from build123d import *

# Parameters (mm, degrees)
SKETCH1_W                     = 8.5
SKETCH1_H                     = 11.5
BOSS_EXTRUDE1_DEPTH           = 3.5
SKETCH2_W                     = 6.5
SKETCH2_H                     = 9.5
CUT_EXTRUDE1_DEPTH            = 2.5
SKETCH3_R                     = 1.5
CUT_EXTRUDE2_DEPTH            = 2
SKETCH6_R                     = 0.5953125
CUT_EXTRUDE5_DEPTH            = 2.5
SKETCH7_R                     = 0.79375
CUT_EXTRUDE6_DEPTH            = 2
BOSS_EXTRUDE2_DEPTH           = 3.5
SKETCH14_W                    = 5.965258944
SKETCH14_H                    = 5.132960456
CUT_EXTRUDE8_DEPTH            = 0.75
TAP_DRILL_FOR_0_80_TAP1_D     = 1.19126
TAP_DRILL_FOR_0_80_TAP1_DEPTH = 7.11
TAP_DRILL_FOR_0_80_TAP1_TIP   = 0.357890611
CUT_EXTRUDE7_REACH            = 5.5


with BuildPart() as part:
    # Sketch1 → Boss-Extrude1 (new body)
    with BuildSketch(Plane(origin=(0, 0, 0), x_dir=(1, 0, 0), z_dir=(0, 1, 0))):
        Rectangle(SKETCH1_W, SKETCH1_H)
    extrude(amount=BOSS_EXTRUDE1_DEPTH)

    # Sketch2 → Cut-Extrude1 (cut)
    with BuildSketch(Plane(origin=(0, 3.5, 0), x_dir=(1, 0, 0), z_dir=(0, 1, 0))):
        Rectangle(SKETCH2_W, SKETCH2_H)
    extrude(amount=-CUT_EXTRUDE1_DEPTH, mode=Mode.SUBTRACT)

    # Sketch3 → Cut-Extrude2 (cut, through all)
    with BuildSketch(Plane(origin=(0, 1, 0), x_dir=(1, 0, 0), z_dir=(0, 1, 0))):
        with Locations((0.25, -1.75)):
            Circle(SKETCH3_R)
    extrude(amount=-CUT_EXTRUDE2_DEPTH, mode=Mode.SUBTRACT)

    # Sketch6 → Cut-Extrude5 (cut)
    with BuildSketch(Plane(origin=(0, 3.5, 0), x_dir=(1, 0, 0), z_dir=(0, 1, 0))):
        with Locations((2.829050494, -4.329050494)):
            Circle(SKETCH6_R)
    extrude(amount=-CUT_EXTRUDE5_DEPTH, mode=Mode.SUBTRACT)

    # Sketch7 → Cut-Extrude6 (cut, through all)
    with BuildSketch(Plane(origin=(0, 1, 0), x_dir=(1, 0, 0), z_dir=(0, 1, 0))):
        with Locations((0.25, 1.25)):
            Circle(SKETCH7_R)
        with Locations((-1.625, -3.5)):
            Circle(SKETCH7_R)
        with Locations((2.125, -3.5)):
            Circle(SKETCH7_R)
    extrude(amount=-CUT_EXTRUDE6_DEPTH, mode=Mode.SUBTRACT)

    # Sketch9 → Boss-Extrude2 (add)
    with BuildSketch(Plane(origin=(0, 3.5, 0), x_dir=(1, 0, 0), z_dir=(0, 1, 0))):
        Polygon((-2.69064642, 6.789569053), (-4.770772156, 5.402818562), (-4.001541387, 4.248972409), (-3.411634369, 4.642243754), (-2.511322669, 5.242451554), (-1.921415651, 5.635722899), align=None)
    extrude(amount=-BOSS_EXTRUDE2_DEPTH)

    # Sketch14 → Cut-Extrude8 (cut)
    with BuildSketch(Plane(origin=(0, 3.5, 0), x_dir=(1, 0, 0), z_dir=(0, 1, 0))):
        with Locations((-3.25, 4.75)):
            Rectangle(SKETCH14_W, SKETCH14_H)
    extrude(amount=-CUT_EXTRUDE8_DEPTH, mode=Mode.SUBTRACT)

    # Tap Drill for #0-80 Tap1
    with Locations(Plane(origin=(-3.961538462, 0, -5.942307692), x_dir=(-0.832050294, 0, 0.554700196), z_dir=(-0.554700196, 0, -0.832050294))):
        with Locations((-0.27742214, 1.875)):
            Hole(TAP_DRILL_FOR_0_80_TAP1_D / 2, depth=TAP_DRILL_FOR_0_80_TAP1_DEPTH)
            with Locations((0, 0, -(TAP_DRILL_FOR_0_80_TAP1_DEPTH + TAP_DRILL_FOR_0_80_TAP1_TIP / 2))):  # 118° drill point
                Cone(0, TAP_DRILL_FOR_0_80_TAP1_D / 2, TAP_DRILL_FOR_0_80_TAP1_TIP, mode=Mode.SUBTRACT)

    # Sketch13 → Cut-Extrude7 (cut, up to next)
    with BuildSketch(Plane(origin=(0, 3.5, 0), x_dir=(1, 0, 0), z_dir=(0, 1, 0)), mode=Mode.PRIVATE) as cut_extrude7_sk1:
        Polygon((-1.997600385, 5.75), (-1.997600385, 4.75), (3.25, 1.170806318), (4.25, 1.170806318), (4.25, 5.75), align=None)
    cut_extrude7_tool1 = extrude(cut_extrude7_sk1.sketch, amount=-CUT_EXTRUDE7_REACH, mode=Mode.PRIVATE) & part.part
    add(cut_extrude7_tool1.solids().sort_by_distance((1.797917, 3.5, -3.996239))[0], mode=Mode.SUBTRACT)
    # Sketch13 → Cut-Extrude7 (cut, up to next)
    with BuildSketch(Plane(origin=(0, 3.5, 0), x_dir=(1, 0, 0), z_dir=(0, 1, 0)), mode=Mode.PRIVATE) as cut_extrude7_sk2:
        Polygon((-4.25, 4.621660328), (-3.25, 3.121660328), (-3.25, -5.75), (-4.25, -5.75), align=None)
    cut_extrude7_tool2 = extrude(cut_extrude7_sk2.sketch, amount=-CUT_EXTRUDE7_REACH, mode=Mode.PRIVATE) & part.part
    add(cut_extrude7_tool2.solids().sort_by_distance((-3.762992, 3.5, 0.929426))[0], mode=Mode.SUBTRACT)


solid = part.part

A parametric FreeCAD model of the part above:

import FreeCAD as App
import Part
import Sketcher

V = App.Vector
Q = App.Units.Quantity

doc = App.newDocument("Part")
body = doc.addObject("PartDesign::Body", "Body")

sketch1 = doc.addObject("Sketcher::SketchObject", "Sketch")
body.addObject(sketch1)
sketch1.AttachmentSupport = (doc.XZ_Plane, [""])
sketch1.MapMode = "FlatFace"
sketch1.addGeometry(Part.LineSegment(V(-4.25, -5.75, 0), V(-4.25, 5.75, 0)), False)
sketch1.addGeometry(Part.LineSegment(V(-4.25, 5.75, 0), V(4.25, 5.75, 0)), False)
sketch1.addGeometry(Part.LineSegment(V(4.25, 5.75, 0), V(4.25, -5.75, 0)), False)
sketch1.addGeometry(Part.LineSegment(V(4.25, -5.75, 0), V(-4.25, -5.75, 0)), False)
sketch1.addConstraint(Sketcher.Constraint("Coincident", 0, 2, 1, 1))
sketch1.addConstraint(Sketcher.Constraint("Coincident", 1, 2, 2, 1))
sketch1.addConstraint(Sketcher.Constraint("Coincident", 2, 2, 3, 1))
sketch1.addConstraint(Sketcher.Constraint("Coincident", 3, 2, 0, 1))
sketch1.addConstraint(Sketcher.Constraint("Vertical", 0))
sketch1.addConstraint(Sketcher.Constraint("Horizontal", 1))
sketch1.addConstraint(Sketcher.Constraint("Vertical", 2))
sketch1.addConstraint(Sketcher.Constraint("Horizontal", 3))
sketch1.addConstraint(Sketcher.Constraint("Symmetric", 0, 2, 2, 2, -1, 1))
sketch1.addConstraint(Sketcher.Constraint("DistanceX", 1, 1, 1, 2, Q("8.5 mm")))
sketch1.addConstraint(Sketcher.Constraint("DistanceY", 0, 1, 0, 2, Q("11.5 mm")))
pad1 = doc.addObject("PartDesign::Pad", "Pad")
body.addObject(pad1)
pad1.Profile = sketch1
pad1.Length = 3.5
pad1.Reversed = True

sketch2 = doc.addObject("Sketcher::SketchObject", "Sketch001")
body.addObject(sketch2)
sketch2.AttachmentSupport = (doc.XZ_Plane, [""])
sketch2.MapMode = "FlatFace"
sketch2.AttachmentOffset = App.Placement(V(0, 0, -3.5), App.Rotation())
sketch2.addGeometry(Part.LineSegment(V(-3.25, -4.75, 0), V(-3.25, 4.75, 0)), False)
sketch2.addGeometry(Part.LineSegment(V(-3.25, 4.75, 0), V(3.25, 4.75, 0)), False)
sketch2.addGeometry(Part.LineSegment(V(3.25, 4.75, 0), V(3.25, -4.75, 0)), False)
sketch2.addGeometry(Part.LineSegment(V(3.25, -4.75, 0), V(-3.25, -4.75, 0)), False)
sketch2.addConstraint(Sketcher.Constraint("Coincident", 0, 2, 1, 1))
sketch2.addConstraint(Sketcher.Constraint("Coincident", 1, 2, 2, 1))
sketch2.addConstraint(Sketcher.Constraint("Coincident", 2, 2, 3, 1))
sketch2.addConstraint(Sketcher.Constraint("Coincident", 3, 2, 0, 1))
sketch2.addConstraint(Sketcher.Constraint("Vertical", 0))
sketch2.addConstraint(Sketcher.Constraint("Horizontal", 1))
sketch2.addConstraint(Sketcher.Constraint("Vertical", 2))
sketch2.addConstraint(Sketcher.Constraint("Horizontal", 3))
sketch2.addConstraint(Sketcher.Constraint("Symmetric", 0, 2, 2, 2, -1, 1))
sketch2.addConstraint(Sketcher.Constraint("DistanceX", 1, 1, 1, 2, Q("6.5 mm")))
sketch2.addConstraint(Sketcher.Constraint("DistanceY", 0, 1, 0, 2, Q("9.5 mm")))
pocket1 = doc.addObject("PartDesign::Pocket", "Pocket")
body.addObject(pocket1)
pocket1.Profile = sketch2
pocket1.Length = 2.5
pocket1.Reversed = True

sketch3 = doc.addObject("Sketcher::SketchObject", "Sketch002")
body.addObject(sketch3)
sketch3.AttachmentSupport = (doc.XZ_Plane, [""])
sketch3.MapMode = "FlatFace"
sketch3.AttachmentOffset = App.Placement(V(0, 0, -1), App.Rotation())
sketch3.addGeometry(Part.Circle(V(0.25, 1.75, 0), V(0, 0, 1), 1.5), False)
sketch3.addConstraint(Sketcher.Constraint("Diameter", 0, Q("3 mm")))
sketch3.addConstraint(Sketcher.Constraint("DistanceX", -1, 1, 0, 3, Q("0.25 mm")))
sketch3.addConstraint(Sketcher.Constraint("DistanceY", -1, 1, 0, 3, Q("1.75 mm")))
pocket2 = doc.addObject("PartDesign::Pocket", "Pocket001")
body.addObject(pocket2)
pocket2.Profile = sketch3
pocket2.Type = "ThroughAll"
pocket2.Reversed = True

sketch4 = doc.addObject("Sketcher::SketchObject", "Sketch003")
body.addObject(sketch4)
sketch4.AttachmentSupport = (doc.XZ_Plane, [""])
sketch4.MapMode = "FlatFace"
sketch4.AttachmentOffset = App.Placement(V(0, 0, -3.5), App.Rotation())
sketch4.addGeometry(Part.Circle(V(2.82905, 4.32905, 0), V(0, 0, 1), 0.595313), False)
sketch4.addConstraint(Sketcher.Constraint("Diameter", 0, Q("1.190625 mm")))
sketch4.addConstraint(Sketcher.Constraint("DistanceX", -1, 1, 0, 3, Q("2.82905 mm")))
sketch4.addConstraint(Sketcher.Constraint("DistanceY", -1, 1, 0, 3, Q("4.32905 mm")))
pocket3 = doc.addObject("PartDesign::Pocket", "Pocket002")
body.addObject(pocket3)
pocket3.Profile = sketch4
pocket3.Length = 2.5
pocket3.Reversed = True

sketch5 = doc.addObject("Sketcher::SketchObject", "Sketch004")
body.addObject(sketch5)
sketch5.AttachmentSupport = (doc.XZ_Plane, [""])
sketch5.MapMode = "FlatFace"
sketch5.AttachmentOffset = App.Placement(V(0, 0, -1), App.Rotation())
sketch5.addGeometry(Part.Circle(V(0.25, -1.25, 0), V(0, 0, 1), 0.79375), False)
sketch5.addGeometry(Part.Circle(V(-1.625, 3.5, 0), V(0, 0, 1), 0.79375), False)
sketch5.addGeometry(Part.Circle(V(2.125, 3.5, 0), V(0, 0, 1), 0.79375), False)
sketch5.addConstraint(Sketcher.Constraint("Equal", 0, 1))
sketch5.addConstraint(Sketcher.Constraint("Equal", 1, 2))
sketch5.addConstraint(Sketcher.Constraint("Horizontal", 1, 3, 2, 3))
sketch5.addConstraint(Sketcher.Constraint("Diameter", 0, Q("1.5875 mm")))
sketch5.addConstraint(Sketcher.Constraint("DistanceY", -1, 1, 1, 3, Q("3.5 mm")))
sketch5.addConstraint(Sketcher.Constraint("DistanceX", -1, 1, 0, 3, Q("0.25 mm")))
sketch5.addConstraint(Sketcher.Constraint("DistanceY", 0, 3, -1, 1, Q("1.25 mm")))
sketch5.addConstraint(Sketcher.Constraint("DistanceX", 1, 3, 2, 3, Q("3.75 mm")))
sketch5.addConstraint(Sketcher.Constraint("DistanceX", 1, 3, -1, 1, Q("1.625 mm")))
pocket4 = doc.addObject("PartDesign::Pocket", "Pocket003")
body.addObject(pocket4)
pocket4.Profile = sketch5
pocket4.Type = "ThroughAll"
pocket4.Reversed = True

sketch6 = doc.addObject("Sketcher::SketchObject", "Sketch005")
body.addObject(sketch6)
sketch6.AttachmentSupport = (doc.XZ_Plane, [""])
sketch6.MapMode = "FlatFace"
sketch6.AttachmentOffset = App.Placement(V(0, 0, -3.5), App.Rotation())
sketch6.addGeometry(Part.LineSegment(V(-2.690646, -6.789569, 0), V(-4.770772, -5.402819, 0)), False)
sketch6.addGeometry(Part.LineSegment(V(-4.770772, -5.402819, 0), V(-4.001541, -4.248972, 0)), False)
sketch6.addGeometry(Part.LineSegment(V(-4.001541, -4.248972, 0), V(-3.411634, -4.642244, 0)), False)
sketch6.addGeometry(Part.LineSegment(V(-3.411634, -4.642244, 0), V(-2.511323, -5.242452, 0)), False)
sketch6.addGeometry(Part.LineSegment(V(-2.511323, -5.242452, 0), V(-1.921416, -5.635723, 0)), False)
sketch6.addGeometry(Part.LineSegment(V(-1.921416, -5.635723, 0), V(-2.690646, -6.789569, 0)), False)
sketch6.addConstraint(Sketcher.Constraint("Coincident", 0, 2, 1, 1))
sketch6.addConstraint(Sketcher.Constraint("Coincident", 1, 2, 2, 1))
sketch6.addConstraint(Sketcher.Constraint("Coincident", 2, 2, 3, 1))
sketch6.addConstraint(Sketcher.Constraint("Coincident", 3, 2, 4, 1))
sketch6.addConstraint(Sketcher.Constraint("Coincident", 4, 2, 5, 1))
sketch6.addConstraint(Sketcher.Constraint("Coincident", 5, 2, 0, 1))
sketch6.addConstraint(Sketcher.Constraint("Perpendicular", 0, 1))
sketch6.addConstraint(Sketcher.Constraint("Perpendicular", 1, 2))
sketch6.addConstraint(Sketcher.Constraint("Parallel", 2, 3))
sketch6.addConstraint(Sketcher.Constraint("Parallel", 3, 4))
sketch6.addConstraint(Sketcher.Constraint("Perpendicular", 4, 5))
sketch6.addConstraint(Sketcher.Constraint("Equal", 2, 4))
sketch6.addConstraint(Sketcher.Constraint("Distance", 0, Q("2.5 mm")))
sketch6.addConstraint(Sketcher.Constraint("Distance", 1, Q("1.38675 mm")))
sketch6.addConstraint(Sketcher.Constraint("Distance", 2, Q("0.70898 mm")))
sketch6.addConstraint(Sketcher.Constraint("DistanceY", 0, 2, -1, 1, Q("5.402819 mm")))
sketch6.addConstraint(Sketcher.Constraint("DistanceX", 1, 2, -1, 1, Q("4.001541 mm")))
sketch6.addConstraint(Sketcher.Constraint("DistanceY", 3, 2, -1, 1, Q("5.242452 mm")))
pad2 = doc.addObject("PartDesign::Pad", "Pad001")
body.addObject(pad2)
pad2.Profile = sketch6
pad2.Length = 3.5

sketch7 = doc.addObject("Sketcher::SketchObject", "Sketch006")
body.addObject(sketch7)
sketch7.AttachmentSupport = (doc.XZ_Plane, [""])
sketch7.MapMode = "FlatFace"
sketch7.AttachmentOffset = App.Placement(V(0, 0, -3.5), App.Rotation())
sketch7.addGeometry(Part.LineSegment(V(-6.232629, -7.31648, 0), V(-6.232629, -2.18352, 0)), False)
sketch7.addGeometry(Part.LineSegment(V(-6.232629, -2.18352, 0), V(-0.267371, -2.18352, 0)), False)
sketch7.addGeometry(Part.LineSegment(V(-0.267371, -2.18352, 0), V(-0.267371, -7.31648, 0)), False)
sketch7.addGeometry(Part.LineSegment(V(-0.267371, -7.31648, 0), V(-6.232629, -7.31648, 0)), False)
sketch7.addConstraint(Sketcher.Constraint("Coincident", 0, 2, 1, 1))
sketch7.addConstraint(Sketcher.Constraint("Coincident", 1, 2, 2, 1))
sketch7.addConstraint(Sketcher.Constraint("Coincident", 2, 2, 3, 1))
sketch7.addConstraint(Sketcher.Constraint("Coincident", 3, 2, 0, 1))
sketch7.addConstraint(Sketcher.Constraint("Vertical", 0))
sketch7.addConstraint(Sketcher.Constraint("Horizontal", 1))
sketch7.addConstraint(Sketcher.Constraint("Vertical", 2))
sketch7.addConstraint(Sketcher.Constraint("Horizontal", 3))
sketch7.addConstraint(Sketcher.Constraint("DistanceX", 1, 1, 1, 2, Q("5.965259 mm")))
sketch7.addConstraint(Sketcher.Constraint("DistanceY", 0, 1, 0, 2, Q("5.13296 mm")))
sketch7.addConstraint(Sketcher.Constraint("DistanceX", 0, 2, -1, 1, Q("6.232629 mm")))
sketch7.addConstraint(Sketcher.Constraint("DistanceY", 0, 2, -1, 1, Q("2.18352 mm")))
pocket5 = doc.addObject("PartDesign::Pocket", "Pocket004")
body.addObject(pocket5)
pocket5.Profile = sketch7
pocket5.Length = 0.75
pocket5.Reversed = True

sketch8 = doc.addObject("Sketcher::SketchObject", "Sketch007")
body.addObject(sketch8)
sketch8.Placement = App.Placement(V(-3.961538, 0, -5.942308), App.Rotation(V(-0.832050294, 0, 0.554700196), V(0, 0.999999999, 0), V(-0.554700196, 0, -0.832050294), "ZXY"))
sketch8.addGeometry(Part.Circle(V(-0.277422, 1.875, 0), V(0, 0, 1), 0.59563), False)
sketch8.addConstraint(Sketcher.Constraint("Diameter", 0, Q("1.19126 mm")))
sketch8.addConstraint(Sketcher.Constraint("DistanceY", -1, 1, 0, 3, Q("1.875 mm")))
sketch8.addConstraint(Sketcher.Constraint("DistanceX", 0, 3, -1, 1, Q("0.277422 mm")))
doc.recompute()
hole = doc.addObject("PartDesign::Hole", "Hole")
body.addObject(hole)
hole.Profile = sketch8
hole.ThreadType = "None"
hole.Diameter = 1.19126
hole.DepthType = "Dimension"
hole.Depth = 7.11
hole.DrillPoint = "Angled"
hole.DrillPointAngle = 118

sketch9 = doc.addObject("Sketcher::SketchObject", "Sketch008")
body.addObject(sketch9)
sketch9.AttachmentSupport = (doc.XZ_Plane, [""])
sketch9.MapMode = "FlatFace"
sketch9.AttachmentOffset = App.Placement(V(0, 0, -3.5), App.Rotation())
sketch9.addGeometry(Part.LineSegment(V(-1.9976, -5.75, 0), V(-1.9976, -4.75, 0)), False)
sketch9.addGeometry(Part.LineSegment(V(-1.9976, -4.75, 0), V(3.25, -1.170806, 0)), False)
sketch9.addGeometry(Part.LineSegment(V(3.25, -1.170806, 0), V(4.25, -1.170806, 0)), False)
sketch9.addGeometry(Part.LineSegment(V(4.25, -1.170806, 0), V(4.25, -5.75, 0)), False)
sketch9.addGeometry(Part.LineSegment(V(4.25, -5.75, 0), V(-1.9976, -5.75, 0)), False)
sketch9.addConstraint(Sketcher.Constraint("Coincident", 0, 2, 1, 1))
sketch9.addConstraint(Sketcher.Constraint("Coincident", 1, 2, 2, 1))
sketch9.addConstraint(Sketcher.Constraint("Coincident", 2, 2, 3, 1))
sketch9.addConstraint(Sketcher.Constraint("Coincident", 3, 2, 4, 1))
sketch9.addConstraint(Sketcher.Constraint("Coincident", 4, 2, 0, 1))
sketch9.addConstraint(Sketcher.Constraint("Vertical", 0))
sketch9.addConstraint(Sketcher.Constraint("Horizontal", 2))
sketch9.addConstraint(Sketcher.Constraint("Vertical", 3))
sketch9.addConstraint(Sketcher.Constraint("Horizontal", 4))
sketch9.addConstraint(Sketcher.Constraint("Equal", 2, 0))
sketch9.addConstraint(Sketcher.Constraint("DistanceX", 2, 1, 2, 2, Q("1 mm")))
sketch9.addConstraint(Sketcher.Constraint("DistanceY", 0, 2, -1, 1, Q("4.75 mm")))
sketch9.addConstraint(Sketcher.Constraint("DistanceX", -1, 1, 1, 2, Q("3.25 mm")))
sketch9.addConstraint(Sketcher.Constraint("DistanceX", 4, 2, 4, 1, Q("6.2476 mm")))
sketch9.addConstraint(Sketcher.Constraint("DistanceY", 3, 2, 3, 1, Q("4.579194 mm")))
pocket6 = doc.addObject("PartDesign::Pocket", "Pocket005")
body.addObject(pocket6)
pocket6.Profile = sketch9
pocket6.Length = 3.5
pocket6.Reversed = True

sketch10 = doc.addObject("Sketcher::SketchObject", "Sketch009")
body.addObject(sketch10)
sketch10.AttachmentSupport = (doc.XZ_Plane, [""])
sketch10.MapMode = "FlatFace"
sketch10.AttachmentOffset = App.Placement(V(0, 0, -3.5), App.Rotation())
sketch10.addGeometry(Part.LineSegment(V(-3.25, -3.12166, 0), V(-4.25, -4.62166, 0)), False)
sketch10.addGeometry(Part.LineSegment(V(-4.25, -4.62166, 0), V(-4.25, 5.75, 0)), False)
sketch10.addGeometry(Part.LineSegment(V(-4.25, 5.75, 0), V(-3.25, 5.75, 0)), False)
sketch10.addGeometry(Part.LineSegment(V(-3.25, 5.75, 0), V(-3.25, -3.12166, 0)), False)
sketch10.addConstraint(Sketcher.Constraint("Coincident", 0, 2, 1, 1))
sketch10.addConstraint(Sketcher.Constraint("Coincident", 1, 2, 2, 1))
sketch10.addConstraint(Sketcher.Constraint("Coincident", 2, 2, 3, 1))
sketch10.addConstraint(Sketcher.Constraint("Coincident", 3, 2, 0, 1))
sketch10.addConstraint(Sketcher.Constraint("Vertical", 1))
sketch10.addConstraint(Sketcher.Constraint("Horizontal", 2))
sketch10.addConstraint(Sketcher.Constraint("Vertical", 3))
sketch10.addConstraint(Sketcher.Constraint("DistanceX", 2, 1, 2, 2, Q("1 mm")))
sketch10.addConstraint(Sketcher.Constraint("DistanceY", 0, 2, 3, 2, Q("1.5 mm")))
sketch10.addConstraint(Sketcher.Constraint("DistanceX", 0, 2, -1, 1, Q("4.25 mm")))
sketch10.addConstraint(Sketcher.Constraint("DistanceY", -1, 1, 1, 2, Q("5.75 mm")))
sketch10.addConstraint(Sketcher.Constraint("DistanceY", 1, 1, 1, 2, Q("10.37166 mm")))
pocket7 = doc.addObject("PartDesign::Pocket", "Pocket006")
body.addObject(pocket7)
pocket7.Profile = sketch10
pocket7.Type = "UpToFirst"
pocket7.Reversed = True

doc.recompute()
